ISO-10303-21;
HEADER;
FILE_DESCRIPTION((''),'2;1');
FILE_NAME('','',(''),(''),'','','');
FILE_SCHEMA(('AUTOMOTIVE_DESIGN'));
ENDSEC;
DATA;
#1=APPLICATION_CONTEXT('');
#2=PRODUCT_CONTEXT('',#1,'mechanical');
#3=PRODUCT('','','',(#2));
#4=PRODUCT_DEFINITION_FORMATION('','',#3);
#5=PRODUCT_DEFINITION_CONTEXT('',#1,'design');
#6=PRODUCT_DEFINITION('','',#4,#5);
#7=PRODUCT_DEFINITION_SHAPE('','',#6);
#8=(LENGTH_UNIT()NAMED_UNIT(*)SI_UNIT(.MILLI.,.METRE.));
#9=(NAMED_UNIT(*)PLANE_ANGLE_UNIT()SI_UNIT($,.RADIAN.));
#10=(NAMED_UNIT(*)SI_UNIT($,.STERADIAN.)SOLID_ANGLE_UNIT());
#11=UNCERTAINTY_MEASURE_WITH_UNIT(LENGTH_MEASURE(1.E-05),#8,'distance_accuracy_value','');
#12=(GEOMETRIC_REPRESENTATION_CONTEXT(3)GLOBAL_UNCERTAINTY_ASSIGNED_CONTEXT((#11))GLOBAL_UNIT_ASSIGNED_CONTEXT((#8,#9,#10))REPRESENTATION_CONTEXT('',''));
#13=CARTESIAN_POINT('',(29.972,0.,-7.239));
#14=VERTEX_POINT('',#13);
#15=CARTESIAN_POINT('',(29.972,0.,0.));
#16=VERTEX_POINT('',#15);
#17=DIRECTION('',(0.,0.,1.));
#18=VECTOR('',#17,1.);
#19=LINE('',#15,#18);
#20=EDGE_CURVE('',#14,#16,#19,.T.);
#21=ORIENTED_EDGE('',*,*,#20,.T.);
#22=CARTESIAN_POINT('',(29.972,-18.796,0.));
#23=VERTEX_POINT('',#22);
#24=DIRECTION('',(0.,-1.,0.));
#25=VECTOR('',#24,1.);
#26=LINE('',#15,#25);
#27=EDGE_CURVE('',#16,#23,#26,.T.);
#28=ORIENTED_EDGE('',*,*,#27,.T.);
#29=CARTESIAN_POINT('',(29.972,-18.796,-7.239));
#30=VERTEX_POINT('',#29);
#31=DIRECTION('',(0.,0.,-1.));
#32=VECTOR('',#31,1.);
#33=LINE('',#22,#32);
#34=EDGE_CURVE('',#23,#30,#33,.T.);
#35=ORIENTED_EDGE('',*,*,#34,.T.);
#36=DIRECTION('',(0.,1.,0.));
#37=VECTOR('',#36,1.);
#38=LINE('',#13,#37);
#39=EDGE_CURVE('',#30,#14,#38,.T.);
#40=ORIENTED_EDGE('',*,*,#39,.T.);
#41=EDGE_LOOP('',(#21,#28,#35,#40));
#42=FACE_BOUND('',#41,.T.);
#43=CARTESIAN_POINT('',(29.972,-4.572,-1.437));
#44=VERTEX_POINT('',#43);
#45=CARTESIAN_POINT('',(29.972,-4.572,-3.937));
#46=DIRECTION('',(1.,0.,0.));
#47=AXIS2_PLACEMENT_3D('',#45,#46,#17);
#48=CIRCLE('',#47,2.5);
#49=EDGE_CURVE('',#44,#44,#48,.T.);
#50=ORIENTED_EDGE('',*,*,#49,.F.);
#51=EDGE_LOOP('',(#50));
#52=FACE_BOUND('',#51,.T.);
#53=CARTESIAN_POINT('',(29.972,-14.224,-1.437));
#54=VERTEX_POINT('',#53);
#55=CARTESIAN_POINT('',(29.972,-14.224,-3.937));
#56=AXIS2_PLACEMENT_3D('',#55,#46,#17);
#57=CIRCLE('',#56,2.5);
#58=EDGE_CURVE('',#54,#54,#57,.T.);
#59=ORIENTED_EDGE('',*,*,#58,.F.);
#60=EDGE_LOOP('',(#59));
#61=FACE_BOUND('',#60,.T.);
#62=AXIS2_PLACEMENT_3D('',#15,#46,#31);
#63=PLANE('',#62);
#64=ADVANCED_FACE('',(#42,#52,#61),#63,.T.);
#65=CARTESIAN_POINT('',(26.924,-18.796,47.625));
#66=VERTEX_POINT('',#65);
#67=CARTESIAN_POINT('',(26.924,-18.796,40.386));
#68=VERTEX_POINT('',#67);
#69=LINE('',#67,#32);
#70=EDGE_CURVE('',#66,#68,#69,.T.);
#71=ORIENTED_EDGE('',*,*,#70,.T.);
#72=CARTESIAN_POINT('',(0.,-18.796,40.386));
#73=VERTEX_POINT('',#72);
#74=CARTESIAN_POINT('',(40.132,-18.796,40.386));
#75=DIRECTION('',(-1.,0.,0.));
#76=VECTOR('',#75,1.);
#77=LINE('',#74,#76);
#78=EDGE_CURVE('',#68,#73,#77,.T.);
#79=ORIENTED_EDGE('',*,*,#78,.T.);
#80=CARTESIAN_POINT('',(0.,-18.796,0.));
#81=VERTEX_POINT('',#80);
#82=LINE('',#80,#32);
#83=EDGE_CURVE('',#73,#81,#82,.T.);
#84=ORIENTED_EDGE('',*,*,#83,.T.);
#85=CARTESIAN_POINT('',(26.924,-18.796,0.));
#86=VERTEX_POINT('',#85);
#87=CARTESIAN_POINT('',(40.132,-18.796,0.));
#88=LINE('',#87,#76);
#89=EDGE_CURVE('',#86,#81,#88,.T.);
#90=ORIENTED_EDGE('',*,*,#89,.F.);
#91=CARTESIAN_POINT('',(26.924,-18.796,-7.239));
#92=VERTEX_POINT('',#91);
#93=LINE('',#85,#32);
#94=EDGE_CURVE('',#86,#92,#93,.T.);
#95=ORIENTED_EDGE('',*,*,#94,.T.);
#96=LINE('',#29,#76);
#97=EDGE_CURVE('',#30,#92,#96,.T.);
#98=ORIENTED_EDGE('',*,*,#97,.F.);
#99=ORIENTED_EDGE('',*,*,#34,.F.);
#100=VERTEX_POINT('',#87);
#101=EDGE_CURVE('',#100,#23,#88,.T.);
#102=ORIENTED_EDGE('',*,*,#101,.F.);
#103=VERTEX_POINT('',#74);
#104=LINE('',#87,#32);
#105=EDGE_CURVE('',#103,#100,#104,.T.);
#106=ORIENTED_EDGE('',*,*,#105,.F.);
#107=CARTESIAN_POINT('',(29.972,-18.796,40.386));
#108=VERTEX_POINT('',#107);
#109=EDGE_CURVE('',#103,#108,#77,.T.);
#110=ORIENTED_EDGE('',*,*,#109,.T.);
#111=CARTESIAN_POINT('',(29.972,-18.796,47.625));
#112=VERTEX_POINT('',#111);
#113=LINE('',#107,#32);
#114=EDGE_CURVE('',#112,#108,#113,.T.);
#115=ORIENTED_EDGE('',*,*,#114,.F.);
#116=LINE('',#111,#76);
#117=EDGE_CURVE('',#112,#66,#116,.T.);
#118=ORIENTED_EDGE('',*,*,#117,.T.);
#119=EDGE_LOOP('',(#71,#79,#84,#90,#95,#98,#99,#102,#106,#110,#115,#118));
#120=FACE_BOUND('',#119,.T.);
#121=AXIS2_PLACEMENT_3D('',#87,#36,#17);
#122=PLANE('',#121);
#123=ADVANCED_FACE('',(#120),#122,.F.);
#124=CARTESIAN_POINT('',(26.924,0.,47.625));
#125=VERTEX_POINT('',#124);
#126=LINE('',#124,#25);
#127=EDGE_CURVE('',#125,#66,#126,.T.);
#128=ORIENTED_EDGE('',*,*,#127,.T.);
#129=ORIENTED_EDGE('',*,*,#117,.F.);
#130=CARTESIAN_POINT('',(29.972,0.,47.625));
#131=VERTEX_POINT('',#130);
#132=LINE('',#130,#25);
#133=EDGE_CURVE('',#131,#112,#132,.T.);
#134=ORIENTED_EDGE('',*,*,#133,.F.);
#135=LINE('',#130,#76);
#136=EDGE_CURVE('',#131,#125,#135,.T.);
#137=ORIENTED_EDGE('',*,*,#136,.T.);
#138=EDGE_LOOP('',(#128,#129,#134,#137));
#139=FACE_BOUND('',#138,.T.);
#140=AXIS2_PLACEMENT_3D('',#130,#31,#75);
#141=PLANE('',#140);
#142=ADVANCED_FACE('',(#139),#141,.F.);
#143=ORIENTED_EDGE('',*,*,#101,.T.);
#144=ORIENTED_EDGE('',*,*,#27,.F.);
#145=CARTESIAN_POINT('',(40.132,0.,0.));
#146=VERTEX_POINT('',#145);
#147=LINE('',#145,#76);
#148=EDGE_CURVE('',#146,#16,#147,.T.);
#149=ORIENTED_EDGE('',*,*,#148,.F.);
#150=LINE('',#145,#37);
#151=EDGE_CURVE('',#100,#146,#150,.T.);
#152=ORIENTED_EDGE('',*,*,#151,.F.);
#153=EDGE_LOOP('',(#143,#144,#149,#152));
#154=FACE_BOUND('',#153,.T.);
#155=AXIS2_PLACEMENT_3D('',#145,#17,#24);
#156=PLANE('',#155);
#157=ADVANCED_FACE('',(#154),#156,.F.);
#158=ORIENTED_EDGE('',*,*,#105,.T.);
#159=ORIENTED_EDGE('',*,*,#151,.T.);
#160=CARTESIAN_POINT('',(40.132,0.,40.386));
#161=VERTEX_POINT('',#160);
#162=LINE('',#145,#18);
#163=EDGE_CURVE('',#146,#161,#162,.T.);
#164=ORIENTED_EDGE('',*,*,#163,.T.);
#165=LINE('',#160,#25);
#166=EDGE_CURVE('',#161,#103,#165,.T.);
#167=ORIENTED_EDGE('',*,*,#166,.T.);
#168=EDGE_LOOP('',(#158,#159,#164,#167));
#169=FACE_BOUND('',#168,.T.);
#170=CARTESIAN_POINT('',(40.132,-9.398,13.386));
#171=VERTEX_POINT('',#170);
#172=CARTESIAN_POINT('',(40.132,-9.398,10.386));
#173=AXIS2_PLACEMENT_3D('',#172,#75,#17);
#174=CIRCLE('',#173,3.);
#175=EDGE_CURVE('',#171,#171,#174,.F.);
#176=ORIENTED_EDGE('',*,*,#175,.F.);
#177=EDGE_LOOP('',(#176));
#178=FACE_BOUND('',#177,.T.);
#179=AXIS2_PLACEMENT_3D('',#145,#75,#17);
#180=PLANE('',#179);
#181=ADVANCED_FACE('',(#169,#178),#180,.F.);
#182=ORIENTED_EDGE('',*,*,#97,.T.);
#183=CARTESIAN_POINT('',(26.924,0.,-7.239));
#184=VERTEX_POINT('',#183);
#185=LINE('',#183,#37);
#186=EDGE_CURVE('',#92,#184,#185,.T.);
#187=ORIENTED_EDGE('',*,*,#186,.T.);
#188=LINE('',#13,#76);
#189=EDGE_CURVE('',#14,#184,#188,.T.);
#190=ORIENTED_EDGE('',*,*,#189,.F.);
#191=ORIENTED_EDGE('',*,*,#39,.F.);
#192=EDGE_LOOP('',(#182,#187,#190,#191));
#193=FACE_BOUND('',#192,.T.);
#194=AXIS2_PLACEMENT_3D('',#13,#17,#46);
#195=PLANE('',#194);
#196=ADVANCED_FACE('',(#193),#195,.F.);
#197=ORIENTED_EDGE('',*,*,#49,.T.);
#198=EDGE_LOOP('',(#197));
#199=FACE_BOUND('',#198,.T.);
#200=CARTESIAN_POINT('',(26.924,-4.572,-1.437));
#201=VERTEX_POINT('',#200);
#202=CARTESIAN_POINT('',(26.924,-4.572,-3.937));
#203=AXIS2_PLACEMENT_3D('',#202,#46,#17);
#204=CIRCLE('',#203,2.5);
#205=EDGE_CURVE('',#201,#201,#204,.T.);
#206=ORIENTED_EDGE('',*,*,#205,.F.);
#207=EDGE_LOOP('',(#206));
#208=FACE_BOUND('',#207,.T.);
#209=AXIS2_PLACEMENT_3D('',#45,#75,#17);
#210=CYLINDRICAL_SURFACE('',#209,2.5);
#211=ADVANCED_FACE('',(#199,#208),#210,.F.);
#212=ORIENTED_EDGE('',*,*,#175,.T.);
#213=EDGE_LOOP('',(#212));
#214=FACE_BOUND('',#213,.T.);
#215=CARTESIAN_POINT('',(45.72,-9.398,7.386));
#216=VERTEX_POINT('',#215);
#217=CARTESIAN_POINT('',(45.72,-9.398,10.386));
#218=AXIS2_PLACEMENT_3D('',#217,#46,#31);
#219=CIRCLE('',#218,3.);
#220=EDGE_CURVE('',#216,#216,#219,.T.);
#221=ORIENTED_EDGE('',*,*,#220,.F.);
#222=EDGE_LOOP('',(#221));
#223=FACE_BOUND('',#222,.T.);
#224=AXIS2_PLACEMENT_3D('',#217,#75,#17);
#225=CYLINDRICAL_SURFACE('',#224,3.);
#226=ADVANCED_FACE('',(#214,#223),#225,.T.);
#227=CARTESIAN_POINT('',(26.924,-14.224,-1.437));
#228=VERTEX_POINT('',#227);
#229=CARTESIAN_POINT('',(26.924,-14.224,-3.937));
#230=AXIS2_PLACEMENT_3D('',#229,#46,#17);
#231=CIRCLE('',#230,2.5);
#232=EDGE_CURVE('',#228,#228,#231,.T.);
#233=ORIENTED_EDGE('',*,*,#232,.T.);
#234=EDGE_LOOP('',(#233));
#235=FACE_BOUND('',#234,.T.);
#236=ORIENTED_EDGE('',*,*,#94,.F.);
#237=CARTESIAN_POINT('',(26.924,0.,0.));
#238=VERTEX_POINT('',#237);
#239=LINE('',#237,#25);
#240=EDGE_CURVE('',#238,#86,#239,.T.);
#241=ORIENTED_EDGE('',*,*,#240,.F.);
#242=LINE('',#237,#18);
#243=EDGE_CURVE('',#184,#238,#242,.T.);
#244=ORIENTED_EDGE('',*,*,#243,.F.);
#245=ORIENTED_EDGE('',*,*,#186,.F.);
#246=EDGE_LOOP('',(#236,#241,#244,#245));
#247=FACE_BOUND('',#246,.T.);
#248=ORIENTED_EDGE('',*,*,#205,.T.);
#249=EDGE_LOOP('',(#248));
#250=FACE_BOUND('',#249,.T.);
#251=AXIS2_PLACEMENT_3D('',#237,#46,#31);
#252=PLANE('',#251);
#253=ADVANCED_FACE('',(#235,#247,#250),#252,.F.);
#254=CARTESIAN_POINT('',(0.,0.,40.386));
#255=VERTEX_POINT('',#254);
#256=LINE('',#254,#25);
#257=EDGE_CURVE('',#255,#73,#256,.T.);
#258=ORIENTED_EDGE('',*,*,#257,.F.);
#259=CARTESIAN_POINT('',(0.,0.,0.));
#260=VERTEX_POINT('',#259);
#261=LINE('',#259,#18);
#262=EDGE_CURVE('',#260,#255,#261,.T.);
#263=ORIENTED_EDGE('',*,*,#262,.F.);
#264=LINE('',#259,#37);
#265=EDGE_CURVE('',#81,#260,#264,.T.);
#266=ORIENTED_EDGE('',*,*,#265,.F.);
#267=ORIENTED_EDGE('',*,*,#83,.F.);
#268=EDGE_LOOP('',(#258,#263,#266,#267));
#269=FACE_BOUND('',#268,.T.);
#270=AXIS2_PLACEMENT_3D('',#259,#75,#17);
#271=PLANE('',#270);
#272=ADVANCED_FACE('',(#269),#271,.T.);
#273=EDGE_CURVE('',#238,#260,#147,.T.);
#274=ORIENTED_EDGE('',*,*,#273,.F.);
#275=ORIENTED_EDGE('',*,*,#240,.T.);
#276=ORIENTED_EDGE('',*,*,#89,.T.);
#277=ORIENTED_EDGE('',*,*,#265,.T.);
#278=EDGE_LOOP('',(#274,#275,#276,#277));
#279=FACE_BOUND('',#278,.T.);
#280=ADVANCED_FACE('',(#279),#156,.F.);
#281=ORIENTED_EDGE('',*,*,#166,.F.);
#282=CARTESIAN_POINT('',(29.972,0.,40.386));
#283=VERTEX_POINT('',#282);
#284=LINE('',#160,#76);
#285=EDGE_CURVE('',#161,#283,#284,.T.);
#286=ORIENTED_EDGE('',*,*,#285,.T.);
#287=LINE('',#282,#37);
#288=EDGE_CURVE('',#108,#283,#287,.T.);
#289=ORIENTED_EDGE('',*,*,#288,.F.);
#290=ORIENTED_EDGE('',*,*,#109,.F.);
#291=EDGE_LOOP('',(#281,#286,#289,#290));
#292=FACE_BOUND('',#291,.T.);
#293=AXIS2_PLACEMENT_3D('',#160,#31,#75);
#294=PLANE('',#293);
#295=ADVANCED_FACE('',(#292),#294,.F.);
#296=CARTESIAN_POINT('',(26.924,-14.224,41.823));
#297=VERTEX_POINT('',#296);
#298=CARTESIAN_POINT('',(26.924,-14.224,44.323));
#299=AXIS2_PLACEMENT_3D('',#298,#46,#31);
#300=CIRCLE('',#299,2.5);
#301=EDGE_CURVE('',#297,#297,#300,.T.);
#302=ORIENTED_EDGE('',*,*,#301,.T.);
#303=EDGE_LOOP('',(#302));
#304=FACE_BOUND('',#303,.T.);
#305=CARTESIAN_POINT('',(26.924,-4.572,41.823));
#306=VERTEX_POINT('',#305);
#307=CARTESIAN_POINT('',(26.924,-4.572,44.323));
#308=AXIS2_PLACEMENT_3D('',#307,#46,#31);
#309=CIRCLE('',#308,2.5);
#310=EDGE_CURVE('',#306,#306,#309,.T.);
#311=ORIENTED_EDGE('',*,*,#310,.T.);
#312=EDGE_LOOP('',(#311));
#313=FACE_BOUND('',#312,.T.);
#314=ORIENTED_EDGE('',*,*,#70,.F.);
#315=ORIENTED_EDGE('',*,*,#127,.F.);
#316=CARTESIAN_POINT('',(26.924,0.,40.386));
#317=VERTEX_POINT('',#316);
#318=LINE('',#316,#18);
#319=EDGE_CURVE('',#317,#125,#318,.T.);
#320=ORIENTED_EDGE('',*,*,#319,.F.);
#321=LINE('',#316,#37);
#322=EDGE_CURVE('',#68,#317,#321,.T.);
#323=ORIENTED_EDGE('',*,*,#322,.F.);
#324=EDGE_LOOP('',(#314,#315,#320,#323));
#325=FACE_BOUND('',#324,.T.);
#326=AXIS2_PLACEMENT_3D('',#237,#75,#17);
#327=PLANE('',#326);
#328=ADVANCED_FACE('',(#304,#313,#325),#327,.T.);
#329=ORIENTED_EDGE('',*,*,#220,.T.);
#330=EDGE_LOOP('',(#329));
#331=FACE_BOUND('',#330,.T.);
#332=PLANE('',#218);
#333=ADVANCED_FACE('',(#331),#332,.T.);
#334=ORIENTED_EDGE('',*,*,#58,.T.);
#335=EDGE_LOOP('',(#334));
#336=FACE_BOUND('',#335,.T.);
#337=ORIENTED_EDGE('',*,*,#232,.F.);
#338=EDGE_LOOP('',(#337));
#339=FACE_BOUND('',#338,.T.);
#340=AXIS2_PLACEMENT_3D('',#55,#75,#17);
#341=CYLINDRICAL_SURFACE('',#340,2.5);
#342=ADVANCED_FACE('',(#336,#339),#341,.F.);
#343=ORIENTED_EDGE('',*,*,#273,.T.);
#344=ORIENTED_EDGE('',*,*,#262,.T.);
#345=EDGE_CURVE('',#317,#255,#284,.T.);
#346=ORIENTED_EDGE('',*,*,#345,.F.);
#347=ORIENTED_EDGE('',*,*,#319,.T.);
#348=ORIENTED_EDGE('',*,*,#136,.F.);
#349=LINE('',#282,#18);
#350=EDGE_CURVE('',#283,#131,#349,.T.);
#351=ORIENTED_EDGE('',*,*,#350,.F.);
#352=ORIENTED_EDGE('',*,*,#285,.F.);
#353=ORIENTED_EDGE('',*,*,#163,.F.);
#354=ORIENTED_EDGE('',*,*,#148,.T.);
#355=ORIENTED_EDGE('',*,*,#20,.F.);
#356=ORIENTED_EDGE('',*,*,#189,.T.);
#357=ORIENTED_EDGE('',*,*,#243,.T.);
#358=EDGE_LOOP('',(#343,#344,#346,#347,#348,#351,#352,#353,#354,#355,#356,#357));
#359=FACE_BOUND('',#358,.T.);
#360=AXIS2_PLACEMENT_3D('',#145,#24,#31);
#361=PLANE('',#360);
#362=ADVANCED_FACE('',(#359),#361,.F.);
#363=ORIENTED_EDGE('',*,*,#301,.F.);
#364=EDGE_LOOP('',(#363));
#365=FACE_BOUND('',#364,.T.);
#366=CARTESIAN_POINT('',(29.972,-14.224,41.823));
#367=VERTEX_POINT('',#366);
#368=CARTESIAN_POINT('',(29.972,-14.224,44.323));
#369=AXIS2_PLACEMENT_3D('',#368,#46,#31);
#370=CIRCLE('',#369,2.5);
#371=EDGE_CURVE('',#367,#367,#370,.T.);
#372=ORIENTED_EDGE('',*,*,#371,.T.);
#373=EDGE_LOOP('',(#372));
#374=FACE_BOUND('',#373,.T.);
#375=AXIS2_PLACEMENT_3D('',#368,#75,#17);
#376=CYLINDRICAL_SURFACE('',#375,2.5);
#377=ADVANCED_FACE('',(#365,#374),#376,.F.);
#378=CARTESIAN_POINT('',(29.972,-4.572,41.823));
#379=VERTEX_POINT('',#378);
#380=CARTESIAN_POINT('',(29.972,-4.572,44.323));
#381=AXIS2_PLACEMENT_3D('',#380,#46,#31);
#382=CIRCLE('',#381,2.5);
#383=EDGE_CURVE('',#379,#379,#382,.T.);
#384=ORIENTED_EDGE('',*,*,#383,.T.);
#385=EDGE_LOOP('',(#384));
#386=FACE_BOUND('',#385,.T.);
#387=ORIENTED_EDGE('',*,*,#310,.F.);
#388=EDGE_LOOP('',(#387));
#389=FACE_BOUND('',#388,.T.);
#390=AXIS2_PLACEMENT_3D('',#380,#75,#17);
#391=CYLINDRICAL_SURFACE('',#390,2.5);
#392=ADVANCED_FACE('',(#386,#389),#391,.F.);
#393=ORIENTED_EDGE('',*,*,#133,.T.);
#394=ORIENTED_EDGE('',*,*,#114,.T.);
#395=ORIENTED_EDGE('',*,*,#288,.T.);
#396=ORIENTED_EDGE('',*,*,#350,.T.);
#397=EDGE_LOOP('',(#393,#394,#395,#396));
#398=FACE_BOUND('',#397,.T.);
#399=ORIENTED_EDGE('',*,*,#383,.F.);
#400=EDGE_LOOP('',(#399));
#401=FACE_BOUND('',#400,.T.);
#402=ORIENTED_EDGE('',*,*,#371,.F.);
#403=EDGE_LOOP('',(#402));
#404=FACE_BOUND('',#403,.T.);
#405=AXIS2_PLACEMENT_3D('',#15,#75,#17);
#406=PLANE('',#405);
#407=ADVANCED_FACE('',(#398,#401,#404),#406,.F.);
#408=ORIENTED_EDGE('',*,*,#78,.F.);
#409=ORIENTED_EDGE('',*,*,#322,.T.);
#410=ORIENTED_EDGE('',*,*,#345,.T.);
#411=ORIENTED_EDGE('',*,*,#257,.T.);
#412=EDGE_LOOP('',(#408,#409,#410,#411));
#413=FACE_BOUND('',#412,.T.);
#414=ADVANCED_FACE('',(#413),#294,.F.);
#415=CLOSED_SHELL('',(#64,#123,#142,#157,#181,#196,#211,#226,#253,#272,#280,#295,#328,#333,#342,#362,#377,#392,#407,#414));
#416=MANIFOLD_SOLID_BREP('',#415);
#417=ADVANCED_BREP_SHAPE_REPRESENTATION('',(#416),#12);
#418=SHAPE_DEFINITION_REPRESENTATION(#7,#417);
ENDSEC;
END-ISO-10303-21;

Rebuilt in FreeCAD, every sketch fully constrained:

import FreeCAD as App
import Part
import Sketcher
Q = App.Units.Quantity

doc = App.newDocument("Part")
body = doc.addObject("PartDesign::Body", "Body")

sketch1 = body.newObject("Sketcher::SketchObject", "Sketch")
sketch1.AttachmentSupport = (doc.getObject("YZ_Plane"), [""])
sketch1.MapMode = "FlatFace"
sketch1.addGeometry([
    Part.LineSegment(App.Vector(0, 40, 0), App.Vector(-19, 40, 0)),
    Part.LineSegment(App.Vector(-19, 40, 0), App.Vector(-19, 0, 0)),
    Part.LineSegment(App.Vector(-19, 0, 0), App.Vector(0, 0, 0)),
    Part.LineSegment(App.Vector(0, 0, 0), App.Vector(0, 40, 0)),
], False)
sketch1.addConstraint([
    Sketcher.Constraint("Coincident", 0, 2, 1, 1),
    Sketcher.Constraint("Coincident", 1, 2, 2, 1),
    Sketcher.Constraint("Coincident", 2, 2, 3, 1),
    Sketcher.Constraint("Coincident", 3, 2, 0, 1),
    Sketcher.Constraint("Horizontal", 0),
    Sketcher.Constraint("Vertical", 1),
    Sketcher.Constraint("Horizontal", 2),
    Sketcher.Constraint("Vertical", 3),
    Sketcher.Constraint("Coincident", 2, 2, -1, 1),
    Sketcher.Constraint("DistanceX", 0, 2, 0, 1, Q("0.74 in")),
    Sketcher.Constraint("DistanceY", 1, 2, 1, 1, Q("1.59 in")),
])
pad1 = body.newObject("PartDesign::Pad", "Pad")
pad1.Profile = sketch1
pad1.Length = Q("1.58 in")

sketch2 = body.newObject("Sketcher::SketchObject", "Sketch001")
sketch2.AttachmentSupport = (doc.getObject("YZ_Plane"), [""])
sketch2.MapMode = "FlatFace"
sketch2.AttachmentOffset = App.Placement(App.Vector(0, 0, 1.06 * 25.4), App.Rotation())
sketch2.addGeometry([
    Part.LineSegment(App.Vector(0, 47.6, 0), App.Vector(-18.8, 47.6, 0)),
    Part.LineSegment(App.Vector(-18.8, 47.6, 0), App.Vector(-18.8, 40.4, 0)),
    Part.LineSegment(App.Vector(-18.8, 40.4, 0), App.Vector(0, 40.4, 0)),
    Part.LineSegment(App.Vector(0, 40.4, 0), App.Vector(0, 47.6, 0)),
    Part.Circle(App.Vector(-14.2, 44.3, 0), App.Vector(0, 0, 1), 2.5),
    Part.Circle(App.Vector(-4.6, 44.3, 0), App.Vector(0, 0, 1), 2.5),
    Part.LineSegment(App.Vector(0, 0, 0), App.Vector(-18.8, 0, 0)),
    Part.LineSegment(App.Vector(-18.8, 0, 0), App.Vector(-18.8, -7.2, 0)),
    Part.LineSegment(App.Vector(-18.8, -7.2, 0), App.Vector(0, -7.2, 0)),
    Part.LineSegment(App.Vector(0, -7.2, 0), App.Vector(0, 0, 0)),
    Part.Circle(App.Vector(-14.2, -3.9, 0), App.Vector(0, 0, 1), 2.5),
    Part.Circle(App.Vector(-4.6, -3.9, 0), App.Vector(0, 0, 1), 2.5),
], False)
sketch2.addConstraint([
    Sketcher.Constraint("Coincident", 0, 2, 1, 1),
    Sketcher.Constraint("Coincident", 1, 2, 2, 1),
    Sketcher.Constraint("Coincident", 2, 2, 3, 1),
    Sketcher.Constraint("Coincident", 3, 2, 0, 1),
    Sketcher.Constraint("Coincident", 6, 2, 7, 1),
    Sketcher.Constraint("Coincident", 7, 2, 8, 1),
    Sketcher.Constraint("Coincident", 8, 2, 9, 1),
    Sketcher.Constraint("Coincident", 9, 2, 6, 1),
    Sketcher.Constraint("Horizontal", 0),
    Sketcher.Constraint("Vertical", 1),
    Sketcher.Constraint("Horizontal", 2),
    Sketcher.Constraint("Vertical", 3),
    Sketcher.Constraint("Horizontal", 6),
    Sketcher.Constraint("Vertical", 7),
    Sketcher.Constraint("Horizontal", 8),
    Sketcher.Constraint("Vertical", 9),
    Sketcher.Constraint("Coincident", 9, 2, -1, 1),
    Sketcher.Constraint("Equal", 4, 5),
    Sketcher.Constraint("Equal", 5, 10),
    Sketcher.Constraint("Equal", 10, 11),
    Sketcher.Constraint("PointOnObject", 2, 2, -2),
    Sketcher.Constraint("Horizontal", 4, 3, 5, 3),
    Sketcher.Constraint("Horizontal", 10, 3, 11, 3),
    Sketcher.Constraint("Vertical", 4, 3, 10, 3),
    Sketcher.Constraint("Vertical", 5, 3, 11, 3),
    Sketcher.Constraint("Vertical", 1, 2, 6, 2),
    Sketcher.Constraint("Equal", 3, 7),
    Sketcher.Constraint("DistanceX", 0, 2, 0, 1, Q("0.74 in")),
    Sketcher.Constraint("DistanceY", 10, 3, 4, 3, Q("1.9 in")),
    Sketcher.Constraint("Diameter", 4, Q("5 mm")),
    Sketcher.Constraint("DistanceY", 1, 2, 1, 1, Q("0.285 in")),
    Sketcher.Constraint("DistanceX", 4, 3, -1, 1, Q("0.56 in")),
    Sketcher.Constraint("DistanceX", 5, 3, -1, 1, Q("0.18 in")),
    Sketcher.Constraint("DistanceY", -1, 1, 1, 2, Q("1.59 in")),
    Sketcher.Constraint("DistanceY", 4, 3, 0, 2, Q("0.13 in")),
])
pad2 = body.newObject("PartDesign::Pad", "Pad001")
pad2.Profile = sketch2
pad2.Length = Q("0.12 in")

sketch3 = body.newObject("Sketcher::SketchObject", "Sketch002")
sketch3.AttachmentSupport = (doc.getObject("YZ_Plane"), [""])
sketch3.MapMode = "FlatFace"
sketch3.AttachmentOffset = App.Placement(App.Vector(0, 0, 1.58 * 25.4), App.Rotation())
sketch3.addGeometry(Part.Circle(App.Vector(-9.4, 10.4, 0), App.Vector(0, 0, 1), 3), False)
sketch3.addConstraint([
    Sketcher.Constraint("Diameter", 0, Q("6 mm")),
    Sketcher.Constraint("DistanceX", 0, 3, -1, 1, Q("0.37 in")),
    Sketcher.Constraint("DistanceY", -1, 1, 0, 3, Q("10.386 mm")),
])
pad3 = body.newObject("PartDesign::Pad", "Pad002")
pad3.Profile = sketch3
pad3.Length = Q("0.22 in")

doc.recompute()
